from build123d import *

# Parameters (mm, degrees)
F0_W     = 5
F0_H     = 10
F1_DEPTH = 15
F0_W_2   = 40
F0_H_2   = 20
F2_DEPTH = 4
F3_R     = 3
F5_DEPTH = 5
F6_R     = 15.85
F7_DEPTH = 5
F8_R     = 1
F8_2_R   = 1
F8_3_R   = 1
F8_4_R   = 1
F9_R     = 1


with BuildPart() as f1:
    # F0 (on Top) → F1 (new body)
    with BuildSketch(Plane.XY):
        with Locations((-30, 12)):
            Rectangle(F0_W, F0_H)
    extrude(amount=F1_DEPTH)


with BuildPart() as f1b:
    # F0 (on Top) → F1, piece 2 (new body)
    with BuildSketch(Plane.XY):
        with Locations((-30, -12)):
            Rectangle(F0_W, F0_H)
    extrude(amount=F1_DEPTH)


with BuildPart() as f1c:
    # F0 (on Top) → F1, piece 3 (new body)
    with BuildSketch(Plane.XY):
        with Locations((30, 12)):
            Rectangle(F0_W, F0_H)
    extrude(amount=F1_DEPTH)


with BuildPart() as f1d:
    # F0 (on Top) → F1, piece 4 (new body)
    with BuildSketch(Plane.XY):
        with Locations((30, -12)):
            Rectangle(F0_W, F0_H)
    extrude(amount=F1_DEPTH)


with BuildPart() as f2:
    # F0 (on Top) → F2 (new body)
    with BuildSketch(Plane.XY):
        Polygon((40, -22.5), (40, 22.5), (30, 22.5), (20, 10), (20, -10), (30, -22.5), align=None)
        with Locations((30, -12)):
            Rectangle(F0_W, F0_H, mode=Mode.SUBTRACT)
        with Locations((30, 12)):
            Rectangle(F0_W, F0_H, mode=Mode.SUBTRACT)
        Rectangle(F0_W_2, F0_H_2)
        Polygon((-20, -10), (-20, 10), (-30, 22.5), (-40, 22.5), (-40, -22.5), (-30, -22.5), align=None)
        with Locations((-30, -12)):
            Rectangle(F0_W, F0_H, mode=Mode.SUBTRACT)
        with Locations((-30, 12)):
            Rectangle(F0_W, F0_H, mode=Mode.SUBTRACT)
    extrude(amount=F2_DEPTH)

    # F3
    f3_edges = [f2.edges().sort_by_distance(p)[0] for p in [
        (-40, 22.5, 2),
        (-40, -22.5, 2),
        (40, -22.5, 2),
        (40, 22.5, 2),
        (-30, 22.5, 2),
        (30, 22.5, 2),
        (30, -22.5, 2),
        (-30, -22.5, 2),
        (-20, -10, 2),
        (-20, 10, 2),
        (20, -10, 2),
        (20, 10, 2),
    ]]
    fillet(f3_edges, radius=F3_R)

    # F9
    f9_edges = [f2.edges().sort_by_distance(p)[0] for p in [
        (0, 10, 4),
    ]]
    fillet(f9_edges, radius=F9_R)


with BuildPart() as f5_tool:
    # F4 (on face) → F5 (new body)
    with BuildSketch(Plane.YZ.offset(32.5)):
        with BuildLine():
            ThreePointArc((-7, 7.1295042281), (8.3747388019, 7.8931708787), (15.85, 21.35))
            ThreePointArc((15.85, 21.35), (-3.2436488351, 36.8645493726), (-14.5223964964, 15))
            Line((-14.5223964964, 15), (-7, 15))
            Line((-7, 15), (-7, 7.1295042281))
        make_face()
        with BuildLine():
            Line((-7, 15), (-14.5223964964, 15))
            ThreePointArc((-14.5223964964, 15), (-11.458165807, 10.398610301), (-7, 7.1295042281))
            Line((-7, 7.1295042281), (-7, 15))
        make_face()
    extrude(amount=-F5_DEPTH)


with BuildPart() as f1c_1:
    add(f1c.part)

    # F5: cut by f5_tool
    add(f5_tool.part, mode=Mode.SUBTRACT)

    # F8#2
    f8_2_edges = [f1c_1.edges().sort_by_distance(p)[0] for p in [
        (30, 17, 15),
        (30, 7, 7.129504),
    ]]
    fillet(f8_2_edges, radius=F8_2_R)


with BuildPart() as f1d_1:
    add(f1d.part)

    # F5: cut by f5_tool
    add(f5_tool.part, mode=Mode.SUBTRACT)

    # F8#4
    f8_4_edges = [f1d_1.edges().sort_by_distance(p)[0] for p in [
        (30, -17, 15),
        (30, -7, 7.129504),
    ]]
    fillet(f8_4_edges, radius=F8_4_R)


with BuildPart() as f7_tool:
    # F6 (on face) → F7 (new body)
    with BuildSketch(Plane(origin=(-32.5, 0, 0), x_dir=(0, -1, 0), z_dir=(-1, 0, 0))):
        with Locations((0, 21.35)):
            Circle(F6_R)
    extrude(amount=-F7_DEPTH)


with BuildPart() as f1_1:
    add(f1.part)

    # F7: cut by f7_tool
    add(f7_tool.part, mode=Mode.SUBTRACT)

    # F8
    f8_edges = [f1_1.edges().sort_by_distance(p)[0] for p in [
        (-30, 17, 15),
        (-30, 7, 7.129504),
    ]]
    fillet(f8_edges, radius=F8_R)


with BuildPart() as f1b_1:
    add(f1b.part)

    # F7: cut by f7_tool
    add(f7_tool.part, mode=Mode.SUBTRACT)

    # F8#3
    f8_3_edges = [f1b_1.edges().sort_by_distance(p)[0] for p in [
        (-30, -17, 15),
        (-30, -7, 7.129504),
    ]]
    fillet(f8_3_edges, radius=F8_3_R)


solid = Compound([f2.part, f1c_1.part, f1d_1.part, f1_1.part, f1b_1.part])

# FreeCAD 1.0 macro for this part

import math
import FreeCAD as App
import Part
import Sketcher


def edges_at(feature, points):
    """Names of the edges that pass closest to the given points."""
    edges = feature.Shape.Edges
    near = lambda p: min(range(len(edges)), key=lambda i: edges[i].distToShape(Part.Vertex(*p))[0])
    return sorted({f"Edge{near(p) + 1}" for p in points})

doc = App.newDocument("Part")
body = doc.addObject("PartDesign::Body", "Body")

sketch1 = body.newObject("Sketcher::SketchObject", "Sketch")
sketch1.AttachmentSupport = (doc.getObject("XY_Plane"), [""])
sketch1.MapMode = "FlatFace"
sketch1.addGeometry([
    Part.LineSegment(App.Vector(-32, 17, 0), App.Vector(-32, 7, 0)),
    Part.LineSegment(App.Vector(-32, 7, 0), App.Vector(-28, 7, 0)),
    Part.LineSegment(App.Vector(-28, 7, 0), App.Vector(-28, 17, 0)),
    Part.LineSegment(App.Vector(-28, 17, 0), App.Vector(-32, 17, 0)),
], False)
sketch1.addConstraint([
    Sketcher.Constraint("Coincident", 0, 2, 1, 1),
    Sketcher.Constraint("Coincident", 1, 2, 2, 1),
    Sketcher.Constraint("Coincident", 2, 2, 3, 1),
    Sketcher.Constraint("Coincident", 3, 2, 0, 1),
    Sketcher.Constraint("Vertical", 0),
    Sketcher.Constraint("Horizontal", 1),
    Sketcher.Constraint("Vertical", 2),
    Sketcher.Constraint("Horizontal", 3),
    Sketcher.Constraint("DistanceX", 1, 1, 1, 2, 5.0),
    Sketcher.Constraint("DistanceY", 0, 2, 0, 1, 10.0),
    Sketcher.Constraint("DistanceY", -1, 1, 0, 2, 7.0),
    Sketcher.Constraint("DistanceX", 0, 2, -1, 1, 32.5),
])
pad1 = body.newObject("PartDesign::Pad", "Pad")
pad1.Profile = sketch1
pad1.Length = 15
body2 = doc.addObject("PartDesign::Body", "Body001")

sketch2 = body2.newObject("Sketcher::SketchObject", "Sketch001")
sketch2.AttachmentSupport = (doc.getObject("XY_Plane001"), [""])
sketch2.MapMode = "FlatFace"
sketch2.addGeometry([
    Part.LineSegment(App.Vector(-32, -7, 0), App.Vector(-32, -17, 0)),
    Part.LineSegment(App.Vector(-32, -17, 0), App.Vector(-28, -17, 0)),
    Part.LineSegment(App.Vector(-28, -17, 0), App.Vector(-28, -7, 0)),
    Part.LineSegment(App.Vector(-28, -7, 0), App.Vector(-32, -7, 0)),
], False)
sketch2.addConstraint([
    Sketcher.Constraint("Coincident", 0, 2, 1, 1),
    Sketcher.Constraint("Coincident", 1, 2, 2, 1),
    Sketcher.Constraint("Coincident", 2, 2, 3, 1),
    Sketcher.Constraint("Coincident", 3, 2, 0, 1),
    Sketcher.Constraint("Vertical", 0),
    Sketcher.Constraint("Horizontal", 1),
    Sketcher.Constraint("Vertical", 2),
    Sketcher.Constraint("Horizontal", 3),
    Sketcher.Constraint("DistanceX", 1, 1, 1, 2, 5.0),
    Sketcher.Constraint("DistanceY", 0, 2, 0, 1, 10.0),
    Sketcher.Constraint("DistanceY", 0, 2, -1, 1, 17.0),
    Sketcher.Constraint("DistanceX", 0, 2, -1, 1, 32.5),
])
pad2 = body2.newObject("PartDesign::Pad", "Pad001")
pad2.Profile = sketch2
pad2.Length = 15
body3 = doc.addObject("PartDesign::Body", "Body002")

sketch3 = body3.newObject("Sketcher::SketchObject", "Sketch002")
sketch3.AttachmentSupport = (doc.getObject("XY_Plane002"), [""])
sketch3.MapMode = "FlatFace"
sketch3.addGeometry([
    Part.LineSegment(App.Vector(28, 17, 0), App.Vector(28, 7, 0)),
    Part.LineSegment(App.Vector(28, 7, 0), App.Vector(32, 7, 0)),
    Part.LineSegment(App.Vector(32, 7, 0), App.Vector(32, 17, 0)),
    Part.LineSegment(App.Vector(32, 17, 0), App.Vector(28, 17, 0)),
], False)
sketch3.addConstraint([
    Sketcher.Constraint("Coincident", 0, 2, 1, 1),
    Sketcher.Constraint("Coincident", 1, 2, 2, 1),
    Sketcher.Constraint("Coincident", 2, 2, 3, 1),
    Sketcher.Constraint("Coincident", 3, 2, 0, 1),
    Sketcher.Constraint("Vertical", 0),
    Sketcher.Constraint("Horizontal", 1),
    Sketcher.Constraint("Vertical", 2),
    Sketcher.Constraint("Horizontal", 3),
    Sketcher.Constraint("DistanceX", 1, 1, 1, 2, 5.0),
    Sketcher.Constraint("DistanceY", 0, 2, 0, 1, 10.0),
    Sketcher.Constraint("DistanceY", -1, 1, 0, 2, 7.0),
    Sketcher.Constraint("DistanceX", -1, 1, 0, 2, 27.5),
])
pad3 = body3.newObject("PartDesign::Pad", "Pad002")
pad3.Profile = sketch3
pad3.Length = 15
body4 = doc.addObject("PartDesign::Body", "Body003")

sketch4 = body4.newObject("Sketcher::SketchObject", "Sketch003")
sketch4.AttachmentSupport = (doc.getObject("XY_Plane003"), [""])
sketch4.MapMode = "FlatFace"
sketch4.addGeometry([
    Part.LineSegment(App.Vector(28, -7, 0), App.Vector(28, -17, 0)),
    Part.LineSegment(App.Vector(28, -17, 0), App.Vector(32, -17, 0)),
    Part.LineSegment(App.Vector(32, -17, 0), App.Vector(32, -7, 0)),
    Part.LineSegment(App.Vector(32, -7, 0), App.Vector(28, -7, 0)),
], False)
sketch4.addConstraint([
    Sketcher.Constraint("Coincident", 0, 2, 1, 1),
    Sketcher.Constraint("Coincident", 1, 2, 2, 1),
    Sketcher.Constraint("Coincident", 2, 2, 3, 1),
    Sketcher.Constraint("Coincident", 3, 2, 0, 1),
    Sketcher.Constraint("Vertical", 0),
    Sketcher.Constraint("Horizontal", 1),
    Sketcher.Constraint("Vertical", 2),
    Sketcher.Constraint("Horizontal", 3),
    Sketcher.Constraint("DistanceX", 1, 1, 1, 2, 5.0),
    Sketcher.Constraint("DistanceY", 0, 2, 0, 1, 10.0),
    Sketcher.Constraint("DistanceY", 0, 2, -1, 1, 17.0),
    Sketcher.Constraint("DistanceX", -1, 1, 0, 2, 27.5),
])
pad4 = body4.newObject("PartDesign::Pad", "Pad003")
pad4.Profile = sketch4
pad4.Length = 15
body5 = doc.addObject("PartDesign::Body", "Body004")

sketch5 = body5.newObject("Sketcher::SketchObject", "Sketch004")
sketch5.AttachmentSupport = (doc.getObject("XY_Plane004"), [""])
sketch5.MapMode = "FlatFace"
sketch5.addGeometry([
    Part.LineSegment(App.Vector(40, -22, 0), App.Vector(40, 22, 0)),
    Part.LineSegment(App.Vector(40, 22, 0), App.Vector(30, 22, 0)),
    Part.LineSegment(App.Vector(30, 22, 0), App.Vector(20, 10, 0)),
    Part.LineSegment(App.Vector(20, 10, 0), App.Vector(-20, 10, 0)),
    Part.LineSegment(App.Vector(-20, 10, 0), App.Vector(-30, 22, 0)),
    Part.LineSegment(App.Vector(-30, 22, 0), App.Vector(-40, 22, 0)),
    Part.LineSegment(App.Vector(-40, 22, 0), App.Vector(-40, -22, 0)),
    Part.LineSegment(App.Vector(-40, -22, 0), App.Vector(-30, -22, 0)),
    Part.LineSegment(App.Vector(-30, -22, 0), App.Vector(-20, -10, 0)),
    Part.LineSegment(App.Vector(-20, -10, 0), App.Vector(20, -10, 0)),
    Part.LineSegment(App.Vector(20, -10, 0), App.Vector(30, -22, 0)),
    Part.LineSegment(App.Vector(30, -22, 0), App.Vector(40, -22, 0)),
    Part.LineSegment(App.Vector(-28, -17, 0), App.Vector(-32, -17, 0)),
    Part.LineSegment(App.Vector(-32, -17, 0), App.Vector(-32, -7, 0)),
    Part.LineSegment(App.Vector(-32, -7, 0), App.Vector(-28, -7, 0)),
    Part.LineSegment(App.Vector(-28, -7, 0), App.Vector(-28, -17, 0)),
    Part.LineSegment(App.Vector(32, -17, 0), App.Vector(28, -17, 0)),
    Part.LineSegment(App.Vector(28, -17, 0), App.Vector(28, -7, 0)),
    Part.LineSegment(App.Vector(28, -7, 0), App.Vector(32, -7, 0)),
    Part.LineSegment(App.Vector(32, -7, 0), App.Vector(32, -17, 0)),
    Part.LineSegment(App.Vector(-28, 7, 0), App.Vector(-32, 7, 0)),
    Part.LineSegment(App.Vector(-32, 7, 0), App.Vector(-32, 17, 0)),
    Part.LineSegment(App.Vector(-32, 17, 0), App.Vector(-28, 17, 0)),
    Part.LineSegment(App.Vector(-28, 17, 0), App.Vector(-28, 7, 0)),
    Part.LineSegment(App.Vector(32, 7, 0), App.Vector(28, 7, 0)),
    Part.LineSegment(App.Vector(28, 7, 0), App.Vector(28, 17, 0)),
    Part.LineSegment(App.Vector(28, 17, 0), App.Vector(32, 17, 0)),
    Part.LineSegment(App.Vector(32, 17, 0), App.Vector(32, 7, 0)),
], False)
sketch5.addConstraint([
    Sketcher.Constraint("Coincident", 0, 2, 1, 1),
    Sketcher.Constraint("Coincident", 1, 2, 2, 1),
    Sketcher.Constraint("Coincident", 2, 2, 3, 1),
    Sketcher.Constraint("Coincident", 3, 2, 4, 1),
    Sketcher.Constraint("Coincident", 4, 2, 5, 1),
    Sketcher.Constraint("Coincident", 5, 2, 6, 1),
    Sketcher.Constraint("Coincident", 6, 2, 7, 1),
    Sketcher.Constraint("Coincident", 7, 2, 8, 1),
    Sketcher.Constraint("Coincident", 8, 2, 9, 1),
    Sketcher.Constraint("Coincident", 9, 2, 10, 1),
    Sketcher.Constraint("Coincident", 10, 2, 11, 1),
    Sketcher.Constraint("Coincident", 11, 2, 0, 1),
    Sketcher.Constraint("Coincident", 12, 2, 13, 1),
    Sketcher.Constraint("Coincident", 13, 2, 14, 1),
    Sketcher.Constraint("Coincident", 14, 2, 15, 1),
    Sketcher.Constraint("Coincident", 15, 2, 12, 1),
    Sketcher.Constraint("Coincident", 16, 2, 17, 1),
    Sketcher.Constraint("Coincident", 17, 2, 18, 1),
    Sketcher.Constraint("Coincident", 18, 2, 19, 1),
    Sketcher.Constraint("Coincident", 19, 2, 16, 1),
    Sketcher.Constraint("Coincident", 20, 2, 21, 1),
    Sketcher.Constraint("Coincident", 21, 2, 22, 1),
    Sketcher.Constraint("Coincident", 22, 2, 23, 1),
    Sketcher.Constraint("Coincident", 23, 2, 20, 1),
    Sketcher.Constraint("Coincident", 24, 2, 25, 1),
    Sketcher.Constraint("Coincident", 25, 2, 26, 1),
    Sketcher.Constraint("Coincident", 26, 2, 27, 1),
    Sketcher.Constraint("Coincident", 27, 2, 24, 1),
    Sketcher.Constraint("Vertical", 0),
    Sketcher.Constraint("Horizontal", 1),
    Sketcher.Constraint("Horizontal", 3),
    Sketcher.Constraint("Horizontal", 5),
    Sketcher.Constraint("Vertical", 6),
    Sketcher.Constraint("Horizontal", 7),
    Sketcher.Constraint("Horizontal", 9),
    Sketcher.Constraint("Horizontal", 11),
    Sketcher.Constraint("Horizontal", 12),
    Sketcher.Constraint("Vertical", 13),
    Sketcher.Constraint("Horizontal", 14),
    Sketcher.Constraint("Vertical", 15),
    Sketcher.Constraint("Horizontal", 16),
    Sketcher.Constraint("Vertical", 17),
    Sketcher.Constraint("Horizontal", 18),
    Sketcher.Constraint("Vertical", 19),
    Sketcher.Constraint("Horizontal", 20),
    Sketcher.Constraint("Vertical", 21),
    Sketcher.Constraint("Horizontal", 22),
    Sketcher.Constraint("Vertical", 23),
    Sketcher.Constraint("Horizontal", 24),
    Sketcher.Constraint("Vertical", 25),
    Sketcher.Constraint("Horizontal", 26),
    Sketcher.Constraint("Vertical", 27),
    Sketcher.Constraint("Symmetric", 0, 2, 6, 2, -1, 1),
    Sketcher.Constraint("Symmetric", 2, 2, 8, 2, -1, 1),
    Sketcher.Constraint("Symmetric", 4, 2, 10, 2, -1, 1),
    Sketcher.Constraint("Symmetric", 18, 2, 20, 2, -1, 1),
    Sketcher.Constraint("Symmetric", 16, 2, 22, 2, -1, 1),
    Sketcher.Constraint("Symmetric", 14, 2, 24, 2, -1, 1),
    Sketcher.Constraint("Symmetric", 12, 2, 26, 2, -1, 1),
    Sketcher.Constraint("Symmetric", 1, 2, 4, 2, -2),
    Sketcher.Constraint("Symmetric", 15, 2, 16, 2, -2),
    Sketcher.Constraint("Symmetric", 13, 2, 18, 2, -2),
    Sketcher.Constraint("Parallel", 2, 8),
    Sketcher.Constraint("Parallel", 4, 10),
    Sketcher.Constraint("Vertical", 3, 2, 8, 2),
    Sketcher.Constraint("Equal", 11, 13),
    Sketcher.Constraint("DistanceX", 1, 2, 1, 1, 10.0),
    Sketcher.Constraint("DistanceX", 3, 2, 3, 1, 40.0),
    Sketcher.Constraint("DistanceX", 12, 2, 12, 1, 5.0),
    Sketcher.Constraint("DistanceY", 0, 1, 0, 2, 45.0),
    Sketcher.Constraint("DistanceX", -1, 1, 0, 2, 40.0),
    Sketcher.Constraint("DistanceY", -1, 1, 2, 2, 10.0),
    Sketcher.Constraint("DistanceY", 12, 2, -1, 1, 17.0),
    Sketcher.Constraint("DistanceX", 12, 2, -1, 1, 32.5),
])
pad5 = body5.newObject("PartDesign::Pad", "Pad004")
pad5.Profile = sketch5
pad5.Length = 4
doc.recompute()

fillet = body5.newObject("PartDesign::Fillet", "Fillet")
fillet.Base = (pad5, edges_at(pad5, [
    (-40, 22.5, 2),
    (-40, -22.5, 2),
    (40, -22.5, 2),
    (40, 22.5, 2),
    (-30, 22.5, 2),
    (30, 22.5, 2),
    (30, -22.5, 2),
    (-30, -22.5, 2),
    (-20, -10, 2),
    (-20, 10, 2),
    (20, -10, 2),
    (20, 10, 2),
]))
fillet.Radius = 3
doc.recompute()

fillet2 = body5.newObject("PartDesign::Fillet", "Fillet001")
fillet2.Base = (fillet, edges_at(fillet, [(0, 10, 4)]))
fillet2.Radius = 1
body6 = doc.addObject("PartDesign::Body", "Body005")

sketch6 = body6.newObject("Sketcher::SketchObject", "Sketch005")
sketch6.AttachmentSupport = (doc.getObject("YZ_Plane005"), [""])
sketch6.MapMode = "FlatFace"
sketch6.AttachmentOffset = App.Placement(App.Vector(0, 0, 32.5), App.Rotation())
sketch6.addGeometry([
    Part.ArcOfCircle(Part.Circle(App.Vector(0, 21, 0), App.Vector(0, 0, 1), 16), math.radians(-116), math.radians(0)),
    Part.ArcOfCircle(Part.Circle(App.Vector(0, 21, 0), App.Vector(0, 0, 1), 16), math.radians(0), math.radians(204)),
    Part.ArcOfCircle(Part.Circle(App.Vector(0, 21, 0), App.Vector(0, 0, 1), 16), math.radians(-156), math.radians(-116)),
], False)
sketch6.addConstraint([
    Sketcher.Constraint("Tangent", 0, 2, 1, 1),
    Sketcher.Constraint("Tangent", 1, 2, 2, 1),
    Sketcher.Constraint("Tangent", 2, 2, 0, 1),
    Sketcher.Constraint("PointOnObject", 0, 3, -2),
    Sketcher.Constraint("Horizontal", 2, 3, 0, 2),
    Sketcher.Constraint("Radius", 0, 15.85),
    Sketcher.Constraint("DistanceY", -1, 1, 1, 2, 15.0),
    Sketcher.Constraint("DistanceX", 2, 2, -1, 1, 7.0),
    Sketcher.Constraint("DistanceY", -1, 1, 0, 3, 21.35),
])
pad6 = body6.newObject("PartDesign::Pad", "Pad005")
pad6.Profile = sketch6
pad6.Length = 5
pad6.Reversed = True
doc.recompute()

body7 = doc.addObject("PartDesign::Body", "Body006")
body7.BaseFeature = body6
boolean = body3.newObject("PartDesign::Boolean", "Boolean")
boolean.Type = "Cut"
boolean.addObjects([body7])
doc.recompute()

fillet3 = body3.newObject("PartDesign::Fillet", "Fillet002")
fillet3.Base = (boolean, edges_at(boolean, [(30, 17, 15), (30, 7, 7.13)]))
fillet3.Radius = 1
doc.recompute()

boolean2 = body4.newObject("PartDesign::Boolean", "Boolean001")
boolean2.Type = "Cut"
boolean2.addObjects([body6])
doc.recompute()

fillet4 = body4.newObject("PartDesign::Fillet", "Fillet003")
fillet4.Base = (boolean2, edges_at(boolean2, [(30, -17, 15), (30, -7, 7.13)]))
fillet4.Radius = 1
body8 = doc.addObject("PartDesign::Body", "Body007")

sketch7 = body8.newObject("Sketcher::SketchObject", "Sketch006")
sketch7.AttachmentSupport = (doc.getObject("YZ_Plane007"), [""])
sketch7.MapMode = "FlatFace"
sketch7.AttachmentOffset = App.Placement(App.Vector(0, 0, -32.5), App.Rotation())
sketch7.addGeometry(Part.Circle(App.Vector(0, 21, 0), App.Vector(0, 0, 1), 16), False)
sketch7.addConstraint([
    Sketcher.Constraint("PointOnObject", 0, 3, -2),
    Sketcher.Constraint("Diameter", 0, 31.7),
    Sketcher.Constraint("DistanceY", -1, 1, 0, 3, 21.35),
])
pad7 = body8.newObject("PartDesign::Pad", "Pad006")
pad7.Profile = sketch7
pad7.Length = 5
doc.recompute()

body9 = doc.addObject("PartDesign::Body", "Body008")
body9.BaseFeature = body8
boolean3 = body.newObject("PartDesign::Boolean", "Boolean002")
boolean3.Type = "Cut"
boolean3.addObjects([body9])
doc.recompute()

fillet5 = body.newObject("PartDesign::Fillet", "Fillet004")
fillet5.Base = (boolean3, edges_at(boolean3, [(-30, 17, 15), (-30, 7, 7.13)]))
fillet5.Radius = 1
doc.recompute()

boolean4 = body2.newObject("PartDesign::Boolean", "Boolean003")
boolean4.Type = "Cut"
boolean4.addObjects([body8])
doc.recompute()

fillet6 = body2.newObject("PartDesign::Fillet", "Fillet005")
fillet6.Base = (boolean4, edges_at(boolean4, [(-30, -17, 15), (-30, -7, 7.13)]))
fillet6.Radius = 1

doc.recompute()
